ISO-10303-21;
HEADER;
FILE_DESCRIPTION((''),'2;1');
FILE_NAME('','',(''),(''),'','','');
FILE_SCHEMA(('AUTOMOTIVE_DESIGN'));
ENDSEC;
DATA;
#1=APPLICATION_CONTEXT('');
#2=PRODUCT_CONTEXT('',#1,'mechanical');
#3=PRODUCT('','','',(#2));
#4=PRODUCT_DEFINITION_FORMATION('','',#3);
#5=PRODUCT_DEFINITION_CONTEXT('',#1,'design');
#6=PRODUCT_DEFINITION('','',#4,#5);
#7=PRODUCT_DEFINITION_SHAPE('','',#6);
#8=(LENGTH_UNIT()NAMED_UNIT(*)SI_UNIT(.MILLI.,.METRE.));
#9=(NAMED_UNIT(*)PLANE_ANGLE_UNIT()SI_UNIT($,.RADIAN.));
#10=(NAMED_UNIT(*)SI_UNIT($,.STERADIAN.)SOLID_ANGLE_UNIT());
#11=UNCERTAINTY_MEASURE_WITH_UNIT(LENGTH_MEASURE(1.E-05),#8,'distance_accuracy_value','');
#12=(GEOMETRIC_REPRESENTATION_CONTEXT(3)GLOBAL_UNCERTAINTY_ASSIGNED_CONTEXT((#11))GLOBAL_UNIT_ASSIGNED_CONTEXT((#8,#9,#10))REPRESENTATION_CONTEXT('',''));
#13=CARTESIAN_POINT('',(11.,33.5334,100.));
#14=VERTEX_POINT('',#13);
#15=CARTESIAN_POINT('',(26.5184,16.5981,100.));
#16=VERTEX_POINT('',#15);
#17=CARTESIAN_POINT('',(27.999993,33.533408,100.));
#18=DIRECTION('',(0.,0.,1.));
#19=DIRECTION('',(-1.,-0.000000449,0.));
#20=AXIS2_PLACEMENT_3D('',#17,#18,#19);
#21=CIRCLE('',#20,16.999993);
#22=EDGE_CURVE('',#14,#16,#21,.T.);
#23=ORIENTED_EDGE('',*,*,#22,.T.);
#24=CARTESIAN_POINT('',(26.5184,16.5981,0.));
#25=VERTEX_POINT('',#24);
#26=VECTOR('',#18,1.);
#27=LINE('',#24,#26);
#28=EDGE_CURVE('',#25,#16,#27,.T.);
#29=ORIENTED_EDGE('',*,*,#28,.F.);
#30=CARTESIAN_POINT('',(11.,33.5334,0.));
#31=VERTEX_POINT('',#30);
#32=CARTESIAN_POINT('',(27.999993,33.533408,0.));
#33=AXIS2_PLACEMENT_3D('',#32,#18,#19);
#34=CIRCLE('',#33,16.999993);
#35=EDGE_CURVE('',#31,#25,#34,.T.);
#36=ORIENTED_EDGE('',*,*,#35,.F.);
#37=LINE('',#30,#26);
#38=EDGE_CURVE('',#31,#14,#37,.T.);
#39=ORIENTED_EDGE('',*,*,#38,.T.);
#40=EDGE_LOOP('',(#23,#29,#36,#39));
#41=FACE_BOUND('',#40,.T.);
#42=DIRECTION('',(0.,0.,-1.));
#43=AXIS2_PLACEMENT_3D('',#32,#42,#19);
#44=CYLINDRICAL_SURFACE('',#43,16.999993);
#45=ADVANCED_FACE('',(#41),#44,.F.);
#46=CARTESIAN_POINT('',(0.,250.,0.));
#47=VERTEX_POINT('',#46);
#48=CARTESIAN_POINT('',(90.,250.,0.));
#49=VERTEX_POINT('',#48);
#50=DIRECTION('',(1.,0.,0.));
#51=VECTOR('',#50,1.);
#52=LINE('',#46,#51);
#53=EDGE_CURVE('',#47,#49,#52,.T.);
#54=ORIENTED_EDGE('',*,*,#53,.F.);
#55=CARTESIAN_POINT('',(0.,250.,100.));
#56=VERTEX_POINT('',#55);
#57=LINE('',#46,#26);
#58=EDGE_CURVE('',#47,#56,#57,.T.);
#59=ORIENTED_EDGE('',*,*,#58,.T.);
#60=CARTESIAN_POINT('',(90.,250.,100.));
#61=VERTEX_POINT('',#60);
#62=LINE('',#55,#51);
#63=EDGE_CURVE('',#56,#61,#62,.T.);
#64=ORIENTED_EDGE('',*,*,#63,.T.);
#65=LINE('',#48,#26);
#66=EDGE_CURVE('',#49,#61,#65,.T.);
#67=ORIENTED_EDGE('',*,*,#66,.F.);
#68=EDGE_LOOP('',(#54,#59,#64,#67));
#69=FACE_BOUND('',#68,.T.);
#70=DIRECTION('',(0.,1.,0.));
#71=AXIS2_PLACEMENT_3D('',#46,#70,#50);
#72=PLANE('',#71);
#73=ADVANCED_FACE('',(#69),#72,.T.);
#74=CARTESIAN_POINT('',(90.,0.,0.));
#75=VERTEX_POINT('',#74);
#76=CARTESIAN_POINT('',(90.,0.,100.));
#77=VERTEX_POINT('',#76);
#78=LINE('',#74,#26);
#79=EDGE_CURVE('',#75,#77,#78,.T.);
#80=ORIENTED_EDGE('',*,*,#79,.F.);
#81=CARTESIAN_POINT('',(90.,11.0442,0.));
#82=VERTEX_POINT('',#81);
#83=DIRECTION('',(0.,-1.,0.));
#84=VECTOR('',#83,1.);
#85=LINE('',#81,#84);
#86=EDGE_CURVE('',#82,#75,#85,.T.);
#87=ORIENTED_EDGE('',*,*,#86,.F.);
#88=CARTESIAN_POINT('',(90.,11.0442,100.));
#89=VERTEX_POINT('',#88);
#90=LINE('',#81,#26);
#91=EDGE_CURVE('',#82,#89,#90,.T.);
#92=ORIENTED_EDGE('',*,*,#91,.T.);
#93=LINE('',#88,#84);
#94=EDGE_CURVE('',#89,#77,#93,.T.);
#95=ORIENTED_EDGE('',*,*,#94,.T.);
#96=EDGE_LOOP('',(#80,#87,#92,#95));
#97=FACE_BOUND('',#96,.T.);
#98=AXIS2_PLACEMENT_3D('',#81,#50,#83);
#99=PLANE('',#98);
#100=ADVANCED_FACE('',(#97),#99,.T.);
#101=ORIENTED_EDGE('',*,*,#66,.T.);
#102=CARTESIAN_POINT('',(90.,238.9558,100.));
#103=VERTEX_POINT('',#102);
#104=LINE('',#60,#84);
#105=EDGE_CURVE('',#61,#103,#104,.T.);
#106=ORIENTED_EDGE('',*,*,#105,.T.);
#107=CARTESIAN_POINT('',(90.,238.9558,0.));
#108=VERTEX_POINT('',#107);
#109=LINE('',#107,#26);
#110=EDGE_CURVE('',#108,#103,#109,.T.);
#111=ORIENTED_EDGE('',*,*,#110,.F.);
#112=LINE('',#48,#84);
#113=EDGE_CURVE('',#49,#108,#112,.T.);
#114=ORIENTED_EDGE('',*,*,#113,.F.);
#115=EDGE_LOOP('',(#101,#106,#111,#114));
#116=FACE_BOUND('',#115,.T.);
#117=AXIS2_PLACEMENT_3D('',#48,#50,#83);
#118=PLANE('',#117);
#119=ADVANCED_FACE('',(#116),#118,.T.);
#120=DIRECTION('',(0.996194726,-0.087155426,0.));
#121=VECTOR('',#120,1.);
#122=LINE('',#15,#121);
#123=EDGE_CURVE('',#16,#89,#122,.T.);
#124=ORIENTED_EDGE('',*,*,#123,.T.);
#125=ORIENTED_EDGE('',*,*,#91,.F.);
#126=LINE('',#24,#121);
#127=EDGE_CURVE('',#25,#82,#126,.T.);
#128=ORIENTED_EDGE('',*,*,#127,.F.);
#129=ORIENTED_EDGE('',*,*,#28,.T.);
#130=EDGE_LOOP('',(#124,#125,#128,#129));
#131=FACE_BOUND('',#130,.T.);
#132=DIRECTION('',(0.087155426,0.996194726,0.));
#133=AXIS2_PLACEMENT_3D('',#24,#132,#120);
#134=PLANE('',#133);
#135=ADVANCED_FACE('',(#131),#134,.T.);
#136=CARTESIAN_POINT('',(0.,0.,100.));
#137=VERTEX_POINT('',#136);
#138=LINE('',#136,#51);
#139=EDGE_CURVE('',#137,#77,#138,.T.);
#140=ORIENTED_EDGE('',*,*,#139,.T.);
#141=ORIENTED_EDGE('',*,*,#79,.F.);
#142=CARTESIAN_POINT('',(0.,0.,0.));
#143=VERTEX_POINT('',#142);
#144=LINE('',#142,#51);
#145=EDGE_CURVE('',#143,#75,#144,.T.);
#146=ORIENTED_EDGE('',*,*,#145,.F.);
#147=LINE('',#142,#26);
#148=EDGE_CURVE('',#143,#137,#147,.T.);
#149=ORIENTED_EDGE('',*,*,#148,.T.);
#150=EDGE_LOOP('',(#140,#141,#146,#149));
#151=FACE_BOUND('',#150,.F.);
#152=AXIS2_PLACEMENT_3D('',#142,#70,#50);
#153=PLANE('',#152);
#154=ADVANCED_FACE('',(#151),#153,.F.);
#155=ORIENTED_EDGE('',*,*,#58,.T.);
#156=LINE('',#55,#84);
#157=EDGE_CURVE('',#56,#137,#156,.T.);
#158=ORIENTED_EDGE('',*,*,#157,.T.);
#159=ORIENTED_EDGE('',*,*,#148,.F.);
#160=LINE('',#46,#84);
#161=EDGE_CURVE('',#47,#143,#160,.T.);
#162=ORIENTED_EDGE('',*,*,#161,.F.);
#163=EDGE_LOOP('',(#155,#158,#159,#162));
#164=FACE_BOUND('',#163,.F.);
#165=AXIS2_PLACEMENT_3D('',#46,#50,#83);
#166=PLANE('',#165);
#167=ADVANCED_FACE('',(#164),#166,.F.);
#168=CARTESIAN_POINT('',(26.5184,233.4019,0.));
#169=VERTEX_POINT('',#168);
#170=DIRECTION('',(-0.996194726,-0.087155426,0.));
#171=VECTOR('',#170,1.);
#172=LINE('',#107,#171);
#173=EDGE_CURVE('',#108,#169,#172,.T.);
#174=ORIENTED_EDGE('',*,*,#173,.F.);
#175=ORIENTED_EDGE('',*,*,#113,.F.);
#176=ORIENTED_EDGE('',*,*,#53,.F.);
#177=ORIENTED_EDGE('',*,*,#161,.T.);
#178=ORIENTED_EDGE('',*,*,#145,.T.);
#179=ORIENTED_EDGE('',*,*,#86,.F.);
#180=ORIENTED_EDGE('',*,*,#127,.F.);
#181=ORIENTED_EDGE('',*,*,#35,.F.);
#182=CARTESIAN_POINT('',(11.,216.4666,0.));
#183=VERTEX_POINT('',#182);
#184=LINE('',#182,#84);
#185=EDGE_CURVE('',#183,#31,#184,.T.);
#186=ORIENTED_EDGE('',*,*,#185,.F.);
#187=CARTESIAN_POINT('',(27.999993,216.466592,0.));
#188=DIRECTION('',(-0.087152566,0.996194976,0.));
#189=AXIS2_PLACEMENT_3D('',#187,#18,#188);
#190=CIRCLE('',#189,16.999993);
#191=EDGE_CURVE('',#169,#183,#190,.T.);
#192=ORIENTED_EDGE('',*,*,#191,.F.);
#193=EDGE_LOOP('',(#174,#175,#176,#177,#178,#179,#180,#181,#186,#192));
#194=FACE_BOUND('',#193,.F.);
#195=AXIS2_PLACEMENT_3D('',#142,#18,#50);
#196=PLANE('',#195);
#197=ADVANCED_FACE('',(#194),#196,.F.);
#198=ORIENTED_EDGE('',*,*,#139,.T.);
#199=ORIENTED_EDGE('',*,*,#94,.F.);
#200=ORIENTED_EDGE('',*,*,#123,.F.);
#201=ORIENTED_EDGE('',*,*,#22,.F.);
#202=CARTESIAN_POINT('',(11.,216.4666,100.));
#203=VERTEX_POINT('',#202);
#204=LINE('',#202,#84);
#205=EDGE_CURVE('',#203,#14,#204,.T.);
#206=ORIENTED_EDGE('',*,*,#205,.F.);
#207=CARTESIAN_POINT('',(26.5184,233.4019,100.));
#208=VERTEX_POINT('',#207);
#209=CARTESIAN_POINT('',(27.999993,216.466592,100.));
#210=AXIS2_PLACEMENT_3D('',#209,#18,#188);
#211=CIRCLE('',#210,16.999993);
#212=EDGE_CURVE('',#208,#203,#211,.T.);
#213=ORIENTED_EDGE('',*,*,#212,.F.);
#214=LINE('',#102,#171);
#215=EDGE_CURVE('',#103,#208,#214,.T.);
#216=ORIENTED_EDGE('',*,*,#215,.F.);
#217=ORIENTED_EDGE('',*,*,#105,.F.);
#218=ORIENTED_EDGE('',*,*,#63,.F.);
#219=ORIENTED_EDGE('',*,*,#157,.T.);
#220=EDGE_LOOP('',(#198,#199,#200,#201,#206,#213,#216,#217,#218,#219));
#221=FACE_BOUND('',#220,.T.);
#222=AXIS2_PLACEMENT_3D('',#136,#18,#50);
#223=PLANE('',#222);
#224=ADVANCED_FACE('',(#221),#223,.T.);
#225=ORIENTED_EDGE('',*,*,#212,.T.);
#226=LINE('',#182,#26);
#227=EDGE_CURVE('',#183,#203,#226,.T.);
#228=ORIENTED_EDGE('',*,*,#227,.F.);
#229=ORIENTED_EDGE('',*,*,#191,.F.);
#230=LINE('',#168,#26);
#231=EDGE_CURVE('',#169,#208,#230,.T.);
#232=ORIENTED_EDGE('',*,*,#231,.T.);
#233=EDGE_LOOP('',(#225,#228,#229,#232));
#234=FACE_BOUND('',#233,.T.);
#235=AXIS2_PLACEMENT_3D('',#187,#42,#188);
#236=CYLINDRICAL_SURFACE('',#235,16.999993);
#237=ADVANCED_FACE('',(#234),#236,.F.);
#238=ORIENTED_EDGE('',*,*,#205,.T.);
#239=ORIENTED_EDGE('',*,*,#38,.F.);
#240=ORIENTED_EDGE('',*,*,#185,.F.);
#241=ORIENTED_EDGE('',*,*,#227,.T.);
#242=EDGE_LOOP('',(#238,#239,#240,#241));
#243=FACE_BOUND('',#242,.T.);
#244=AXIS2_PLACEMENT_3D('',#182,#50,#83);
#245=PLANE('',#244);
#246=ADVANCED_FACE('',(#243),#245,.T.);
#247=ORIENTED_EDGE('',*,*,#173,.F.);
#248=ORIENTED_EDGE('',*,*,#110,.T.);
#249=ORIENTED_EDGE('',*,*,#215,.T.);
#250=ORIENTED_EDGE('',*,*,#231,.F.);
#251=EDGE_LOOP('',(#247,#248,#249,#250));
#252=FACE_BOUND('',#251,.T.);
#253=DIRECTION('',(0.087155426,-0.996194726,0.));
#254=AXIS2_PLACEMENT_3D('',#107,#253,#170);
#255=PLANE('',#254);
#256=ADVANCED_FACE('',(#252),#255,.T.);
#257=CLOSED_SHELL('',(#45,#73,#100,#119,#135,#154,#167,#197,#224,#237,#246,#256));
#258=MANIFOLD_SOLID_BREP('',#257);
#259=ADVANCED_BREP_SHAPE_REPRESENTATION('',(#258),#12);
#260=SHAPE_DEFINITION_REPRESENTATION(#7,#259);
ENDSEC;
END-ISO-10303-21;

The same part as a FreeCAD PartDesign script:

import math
import FreeCAD as App
import Part
import Sketcher

V = App.Vector
Q = App.Units.Quantity

doc = App.newDocument("Part")
body = doc.addObject("PartDesign::Body", "Body")

# Sketch on XY plane
sketch1 = body.newObject("Sketcher::SketchObject", "Sketch")
sketch1.AttachmentSupport = (doc.getObject("XY_Plane"), [""])
sketch1.MapMode = "FlatFace"
sketch1.addGeometry([
    Part.LineSegment(V(90, 250, 0), V(0, 250, 0)),  # 0
    Part.LineSegment(V(0, 250, 0), V(0, 0, 0)),  # 1
    Part.LineSegment(V(0, 0, 0), V(90, 0, 0)),  # 2
    Part.LineSegment(V(90, 0, 0), V(90, 11.0442, 0)),  # 3
    Part.LineSegment(V(90, 11.0442, 0), V(26.5184, 16.5981, 0)),  # 4
    Part.ArcOfCircle(Part.Circle(V(28, 33.5334, 0), V(0, 0, 1), 17), math.radians(180), math.radians(265.000157)),  # 5
    Part.LineSegment(V(11, 33.5334, 0), V(11, 216.4666, 0)),  # 6
    Part.ArcOfCircle(Part.Circle(V(28, 216.4666, 0), V(0, 0, 1), 16.999986), math.radians(94.999843), math.radians(180)),  # 7
    Part.LineSegment(V(26.5184, 233.4019, 0), V(90, 238.9558, 0)),  # 8
    Part.LineSegment(V(90, 238.9558, 0), V(90, 250, 0)),  # 9
], False)
sketch1.addConstraint([
    Sketcher.Constraint("Coincident", 0, 2, 1, 1),
    Sketcher.Constraint("Coincident", 1, 2, 2, 1),
    Sketcher.Constraint("Coincident", 2, 2, 3, 1),
    Sketcher.Constraint("Coincident", 3, 2, 4, 1),
    Sketcher.Constraint("Tangent", 4, 2, 5, 2),
    Sketcher.Constraint("Tangent", 5, 1, 6, 1),
    Sketcher.Constraint("Tangent", 6, 2, 7, 2),
    Sketcher.Constraint("Tangent", 7, 1, 8, 1),
    Sketcher.Constraint("Coincident", 8, 2, 9, 1),
    Sketcher.Constraint("Coincident", 9, 2, 0, 1),
    Sketcher.Constraint("Horizontal", 0),
    Sketcher.Constraint("Vertical", 1),
    Sketcher.Constraint("Horizontal", 2),
    Sketcher.Constraint("Vertical", 3),
    Sketcher.Constraint("Vertical", 6),
    Sketcher.Constraint("Vertical", 9),
    Sketcher.Constraint("Coincident", 1, 2, -1, 1),
    Sketcher.Constraint("Equal", 5, 7),
    Sketcher.Constraint("Vertical", 4, 2, 7, 1),
    Sketcher.Constraint("Vertical", 3, 2, 8, 2),
    Sketcher.Constraint("Equal", 3, 9),
    Sketcher.Constraint("Radius", 5, Q("17 mm")),
    Sketcher.Constraint("DistanceX", 0, 2, 0, 1, Q("90 mm")),
    Sketcher.Constraint("DistanceY", 1, 2, 1, 1, Q("250 mm")),
    Sketcher.Constraint("Angle", 4, Q("175 deg")),
    Sketcher.Constraint("DistanceX", -1, 1, 5, 3, Q("28 mm")),
    Sketcher.Constraint("DistanceY", 3, 1, 3, 2, Q("11.0442 mm")),
])
pad1 = body.newObject("PartDesign::Pad", "Pad")
pad1.Profile = sketch1
pad1.Length = 100

doc.recompute()
